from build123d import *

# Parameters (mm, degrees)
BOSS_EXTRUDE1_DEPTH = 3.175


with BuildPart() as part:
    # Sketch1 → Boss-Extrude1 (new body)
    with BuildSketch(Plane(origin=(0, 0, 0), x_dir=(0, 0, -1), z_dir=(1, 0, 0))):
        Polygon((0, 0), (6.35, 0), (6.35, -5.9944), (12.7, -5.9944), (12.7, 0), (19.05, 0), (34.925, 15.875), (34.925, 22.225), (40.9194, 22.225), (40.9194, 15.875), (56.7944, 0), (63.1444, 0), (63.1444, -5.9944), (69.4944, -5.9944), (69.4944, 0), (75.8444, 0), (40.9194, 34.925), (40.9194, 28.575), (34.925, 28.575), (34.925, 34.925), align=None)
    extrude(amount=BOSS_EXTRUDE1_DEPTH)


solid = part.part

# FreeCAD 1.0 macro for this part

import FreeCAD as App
import Part
import Sketcher
from FreeCAD import Vector
Q = App.Units.Quantity

doc = App.newDocument("Part")
params = doc.addObject("Spreadsheet::Sheet", "Params")
for row, (alias, value) in enumerate([
    ("sketch1_width", "0.25 in"),
    ("sketch1_width2", "0.236 in"),
    ("pad1_length", "0.125 in"),
], start=1):
    params.set(f"A{row}", alias)
    params.set(f"B{row}", "=" + value)
    params.setAlias(f"B{row}", alias)

body = doc.addObject("PartDesign::Body", "Body")

# Sketch on YZ plane
sketch1 = doc.addObject("Sketcher::SketchObject", "Sketch")
body.addObject(sketch1)
sketch1.AttachmentSupport = (doc.YZ_Plane, [""])
sketch1.MapMode = "FlatFace"
sketch1.addGeometry(Part.LineSegment(Vector(0, 0, 0), Vector(0, -6, 0)), False)
sketch1.addGeometry(Part.LineSegment(Vector(0, -6, 0), Vector(-6, -6, 0)), False)
sketch1.addGeometry(Part.LineSegment(Vector(-6, -6, 0), Vector(-6, -13, 0)), False)
sketch1.addGeometry(Part.LineSegment(Vector(-6, -13, 0), Vector(0, -13, 0)), False)
sketch1.addGeometry(Part.LineSegment(Vector(0, -13, 0), Vector(0, -19, 0)), False)
sketch1.addGeometry(Part.LineSegment(Vector(0, -19, 0), Vector(16, -35, 0)), False)
sketch1.addGeometry(Part.LineSegment(Vector(16, -35, 0), Vector(22, -35, 0)), False)
sketch1.addGeometry(Part.LineSegment(Vector(22, -35, 0), Vector(22, -41, 0)), False)
sketch1.addGeometry(Part.LineSegment(Vector(22, -41, 0), Vector(16, -41, 0)), False)
sketch1.addGeometry(Part.LineSegment(Vector(16, -41, 0), Vector(0, -57, 0)), False)
sketch1.addGeometry(Part.LineSegment(Vector(0, -57, 0), Vector(0, -63, 0)), False)
sketch1.addGeometry(Part.LineSegment(Vector(0, -63, 0), Vector(-6, -63, 0)), False)
sketch1.addGeometry(Part.LineSegment(Vector(-6, -63, 0), Vector(-6, -69, 0)), False)
sketch1.addGeometry(Part.LineSegment(Vector(-6, -69, 0), Vector(0, -69, 0)), False)
sketch1.addGeometry(Part.LineSegment(Vector(0, -69, 0), Vector(0, -76, 0)), False)
sketch1.addGeometry(Part.LineSegment(Vector(0, -76, 0), Vector(35, -41, 0)), False)
sketch1.addGeometry(Part.LineSegment(Vector(35, -41, 0), Vector(29, -41, 0)), False)
sketch1.addGeometry(Part.LineSegment(Vector(29, -41, 0), Vector(29, -35, 0)), False)
sketch1.addGeometry(Part.LineSegment(Vector(29, -35, 0), Vector(35, -35, 0)), False)
sketch1.addGeometry(Part.LineSegment(Vector(35, -35, 0), Vector(0, 0, 0)), False)
sketch1.addConstraint(Sketcher.Constraint("Coincident", 0, 2, 1, 1))
sketch1.addConstraint(Sketcher.Constraint("Coincident", 1, 2, 2, 1))
sketch1.addConstraint(Sketcher.Constraint("Coincident", 2, 2, 3, 1))
sketch1.addConstraint(Sketcher.Constraint("Coincident", 3, 2, 4, 1))
sketch1.addConstraint(Sketcher.Constraint("Coincident", 4, 2, 5, 1))
sketch1.addConstraint(Sketcher.Constraint("Coincident", 5, 2, 6, 1))
sketch1.addConstraint(Sketcher.Constraint("Coincident", 6, 2, 7, 1))
sketch1.addConstraint(Sketcher.Constraint("Coincident", 7, 2, 8, 1))
sketch1.addConstraint(Sketcher.Constraint("Coincident", 8, 2, 9, 1))
sketch1.addConstraint(Sketcher.Constraint("Coincident", 9, 2, 10, 1))
sketch1.addConstraint(Sketcher.Constraint("Coincident", 10, 2, 11, 1))
sketch1.addConstraint(Sketcher.Constraint("Coincident", 11, 2, 12, 1))
sketch1.addConstraint(Sketcher.Constraint("Coincident", 12, 2, 13, 1))
sketch1.addConstraint(Sketcher.Constraint("Coincident", 13, 2, 14, 1))
sketch1.addConstraint(Sketcher.Constraint("Coincident", 14, 2, 15, 1))
sketch1.addConstraint(Sketcher.Constraint("Coincident", 15, 2, 16, 1))
sketch1.addConstraint(Sketcher.Constraint("Coincident", 16, 2, 17, 1))
sketch1.addConstraint(Sketcher.Constraint("Coincident", 17, 2, 18, 1))
sketch1.addConstraint(Sketcher.Constraint("Coincident", 18, 2, 19, 1))
sketch1.addConstraint(Sketcher.Constraint("Coincident", 19, 2, 0, 1))
sketch1.addConstraint(Sketcher.Constraint("Vertical", 0))
sketch1.addConstraint(Sketcher.Constraint("Horizontal", 1))
sketch1.addConstraint(Sketcher.Constraint("Vertical", 2))
sketch1.addConstraint(Sketcher.Constraint("Horizontal", 3))
sketch1.addConstraint(Sketcher.Constraint("Vertical", 4))
sketch1.addConstraint(Sketcher.Constraint("Horizontal", 6))
sketch1.addConstraint(Sketcher.Constraint("Vertical", 7))
sketch1.addConstraint(Sketcher.Constraint("Horizontal", 8))
sketch1.addConstraint(Sketcher.Constraint("Vertical", 10))
sketch1.addConstraint(Sketcher.Constraint("Horizontal", 11))
sketch1.addConstraint(Sketcher.Constraint("Vertical", 12))
sketch1.addConstraint(Sketcher.Constraint("Horizontal", 13))
sketch1.addConstraint(Sketcher.Constraint("Vertical", 14))
sketch1.addConstraint(Sketcher.Constraint("Horizontal", 16))
sketch1.addConstraint(Sketcher.Constraint("Vertical", 17))
sketch1.addConstraint(Sketcher.Constraint("Horizontal", 18))
sketch1.addConstraint(Sketcher.Constraint("Coincident", 19, 2, -1, 1))
sketch1.addConstraint(Sketcher.Constraint("PointOnObject", 3, 2, -2))
sketch1.addConstraint(Sketcher.Constraint("PointOnObject", 9, 2, -2))
sketch1.addConstraint(Sketcher.Constraint("PointOnObject", 13, 2, -2))
sketch1.addConstraint(Sketcher.Constraint("Perpendicular", 5, 9))
sketch1.addConstraint(Sketcher.Constraint("Parallel", 9, 15))
sketch1.addConstraint(Sketcher.Constraint("Perpendicular", 15, 19))
sketch1.addConstraint(Sketcher.Constraint("Horizontal", 8, 2, 15, 2))
sketch1.addConstraint(Sketcher.Constraint("Horizontal", 6, 2, 17, 2))
sketch1.addConstraint(Sketcher.Constraint("Vertical", 5, 2, 8, 2))
sketch1.addConstraint(Sketcher.Constraint("Vertical", 2, 2, 11, 2))
sketch1.addConstraint(Sketcher.Constraint("Vertical", 15, 2, 18, 2))
sketch1.addConstraint(Sketcher.Constraint("Equal", 8, 16))
sketch1.addConstraint(Sketcher.Constraint("Equal", 18, 0))
sketch1.addConstraint(Sketcher.Constraint("Equal", 0, 2))
sketch1.addConstraint(Sketcher.Constraint("Equal", 2, 4))
sketch1.addConstraint(Sketcher.Constraint("Equal", 13, 7))
sketch1.addConstraint(Sketcher.Constraint("Equal", 4, 10))
sketch1.addConstraint(Sketcher.Constraint("Equal", 10, 12))
sketch1.addConstraint(Sketcher.Constraint("Equal", 12, 14))
sketch1.addConstraint(Sketcher.Constraint("DistanceX", 6, 1, 6, 2, Q("0.25 in")))
sketch1.addConstraint(Sketcher.Constraint("DistanceX", 1, 2, 1, 1, Q("0.236 in")))
sketch1.addConstraint(Sketcher.Constraint("DistanceX", -1, 1, 5, 2, Q("0.625 in")))
sketch1.setExpression("Constraints[56]", "Params.sketch1_width")
sketch1.setExpression("Constraints[57]", "Params.sketch1_width2")
pad1 = doc.addObject("PartDesign::Pad", "Pad")
body.addObject(pad1)
pad1.Profile = sketch1
pad1.setExpression("Length", "Params.pad1_length")

doc.recompute()
